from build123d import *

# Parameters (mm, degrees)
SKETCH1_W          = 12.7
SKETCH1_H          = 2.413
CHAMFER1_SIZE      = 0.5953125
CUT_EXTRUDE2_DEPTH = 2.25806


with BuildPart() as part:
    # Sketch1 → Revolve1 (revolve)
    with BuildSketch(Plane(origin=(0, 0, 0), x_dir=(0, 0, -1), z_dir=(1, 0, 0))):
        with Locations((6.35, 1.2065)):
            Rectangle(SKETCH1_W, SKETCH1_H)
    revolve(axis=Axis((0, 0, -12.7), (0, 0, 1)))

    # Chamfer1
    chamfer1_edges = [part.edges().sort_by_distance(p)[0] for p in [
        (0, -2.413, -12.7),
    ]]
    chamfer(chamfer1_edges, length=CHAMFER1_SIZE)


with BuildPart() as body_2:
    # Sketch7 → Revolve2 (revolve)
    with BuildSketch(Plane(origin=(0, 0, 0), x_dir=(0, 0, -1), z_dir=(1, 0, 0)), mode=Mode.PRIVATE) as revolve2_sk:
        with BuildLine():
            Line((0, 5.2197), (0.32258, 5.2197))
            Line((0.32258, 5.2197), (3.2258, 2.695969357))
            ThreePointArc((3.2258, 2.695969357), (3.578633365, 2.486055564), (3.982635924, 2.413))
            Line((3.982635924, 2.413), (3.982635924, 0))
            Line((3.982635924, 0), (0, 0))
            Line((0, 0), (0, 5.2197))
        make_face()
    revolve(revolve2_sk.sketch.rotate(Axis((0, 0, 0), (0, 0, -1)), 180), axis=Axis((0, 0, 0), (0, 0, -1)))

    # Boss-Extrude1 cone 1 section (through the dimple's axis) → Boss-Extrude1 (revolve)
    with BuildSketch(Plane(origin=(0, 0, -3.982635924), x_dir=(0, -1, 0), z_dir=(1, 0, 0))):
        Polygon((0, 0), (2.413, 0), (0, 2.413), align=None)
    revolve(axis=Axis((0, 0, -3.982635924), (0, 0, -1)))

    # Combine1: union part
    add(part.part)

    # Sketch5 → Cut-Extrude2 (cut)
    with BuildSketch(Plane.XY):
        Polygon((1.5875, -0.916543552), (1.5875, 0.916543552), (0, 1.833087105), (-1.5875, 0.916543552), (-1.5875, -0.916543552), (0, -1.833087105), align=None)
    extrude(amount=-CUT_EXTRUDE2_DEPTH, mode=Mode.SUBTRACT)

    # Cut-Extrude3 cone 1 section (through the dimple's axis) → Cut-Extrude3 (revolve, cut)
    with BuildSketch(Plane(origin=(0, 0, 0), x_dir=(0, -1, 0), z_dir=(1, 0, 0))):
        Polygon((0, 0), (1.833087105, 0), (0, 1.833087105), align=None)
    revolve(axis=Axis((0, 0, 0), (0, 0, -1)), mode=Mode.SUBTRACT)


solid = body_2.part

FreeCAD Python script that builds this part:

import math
import FreeCAD as App
import Part
import Sketcher
from FreeCAD import Vector
Q = App.Units.Quantity


def edges_at(feature, points):
    """Names of the edges that pass closest to the given points."""
    edges = feature.Shape.Edges
    near = lambda p: min(range(len(edges)), key=lambda i: edges[i].distToShape(Part.Vertex(*p))[0])
    return sorted({f"Edge{near(p) + 1}" for p in points})

doc = App.newDocument("Part")
body = doc.addObject("PartDesign::Body", "Body")

# Sketch on YZ plane
sketch1 = body.newObject("Sketcher::SketchObject", "Sketch")
sketch1.AttachmentSupport = (doc.getObject("YZ_Plane"), [""])
sketch1.MapMode = "FlatFace"
sketch1.addGeometry([
    Part.LineSegment(Vector(2.4, 0, 0), Vector(0, 0, 0)),
    Part.LineSegment(Vector(0, 0, 0), Vector(0, -12.7, 0)),
    Part.LineSegment(Vector(0, -12.7, 0), Vector(2.4, -12.7, 0)),
    Part.LineSegment(Vector(2.4, -12.7, 0), Vector(2.4, 0, 0)),
], False)
sketch1.addConstraint([
    Sketcher.Constraint("Coincident", 0, 2, 1, 1),
    Sketcher.Constraint("Coincident", 1, 2, 2, 1),
    Sketcher.Constraint("Coincident", 2, 2, 3, 1),
    Sketcher.Constraint("Coincident", 3, 2, 0, 1),
    Sketcher.Constraint("Horizontal", 0),
    Sketcher.Constraint("Vertical", 1),
    Sketcher.Constraint("Horizontal", 2),
    Sketcher.Constraint("Vertical", 3),
    Sketcher.Constraint("Coincident", 0, 2, -1, 1),
    Sketcher.Constraint("DistanceY", 1, 2, 1, 1, Q("0.5 in")),
    Sketcher.Constraint("DistanceX", 0, 2, 0, 1, Q("0.095 in")),
])
revolution = body.newObject("PartDesign::Revolution", "Revolution")
revolution.Profile = sketch1
revolution.ReferenceAxis = (sketch1, ["V_Axis"])
revolution.Angle = 360
doc.recompute()

chamfer = body.newObject("PartDesign::Chamfer", "Chamfer")
chamfer.Base = (revolution, edges_at(revolution, [(0, -2.413, -12.7)]))
chamfer.Size = 0.595313
body2 = doc.addObject("PartDesign::Body", "Body001")

# Sketch on YZ plane
sketch2 = body2.newObject("Sketcher::SketchObject", "Sketch001")
sketch2.AttachmentSupport = (doc.getObject("YZ_Plane001"), [""])
sketch2.MapMode = "FlatFace"
sketch2.addGeometry([
    Part.LineSegment(Vector(5.22, -0.32, 0), Vector(5.22, 0, 0)),  # 0
    Part.LineSegment(Vector(5.22, 0, 0), Vector(0, 0, 0)),  # 1
    Part.LineSegment(Vector(0, 0, 0), Vector(0, -3.98, 0)),  # 2
    Part.LineSegment(Vector(0, -3.98, 0), Vector(2.41, -3.98, 0)),  # 3
    Part.ArcOfCircle(Part.Circle(Vector(3.57, -3.98, 0), Vector(0, 0, 1), 1.15), math.radians(139), math.radians(180)),  # 4
    Part.LineSegment(Vector(2.7, -3.23, 0), Vector(5.22, -0.32, 0)),  # 5
], False)
sketch2.addConstraint([
    Sketcher.Constraint("Coincident", 0, 2, 1, 1),
    Sketcher.Constraint("Coincident", 1, 2, 2, 1),
    Sketcher.Constraint("Coincident", 2, 2, 3, 1),
    Sketcher.Constraint("Coincident", 3, 2, 4, 2),
    Sketcher.Constraint("Tangent", 4, 1, 5, 1),
    Sketcher.Constraint("Coincident", 5, 2, 0, 1),
    Sketcher.Constraint("Vertical", 0),
    Sketcher.Constraint("Horizontal", 1),
    Sketcher.Constraint("Vertical", 2),
    Sketcher.Constraint("Horizontal", 3),
    Sketcher.Constraint("Coincident", 1, 2, -1, 1),
    Sketcher.Constraint("Horizontal", 4, 3, 2, 2),
    Sketcher.Constraint("Angle", 5, Q("49 deg")),
    Sketcher.Constraint("DistanceX", 3, 1, 3, 2, Q("0.095 in")),
    Sketcher.Constraint("DistanceX", 1, 2, 1, 1, Q("0.2055 in")),
    Sketcher.Constraint("DistanceY", 0, 1, 0, 2, Q("0.0127 in")),
    Sketcher.Constraint("DistanceY", 4, 1, -1, 1, Q("0.127 in")),
])
revolution2 = body2.newObject("PartDesign::Revolution", "Revolution001")
revolution2.Profile = sketch2
revolution2.ReferenceAxis = (sketch2, ["V_Axis"])
revolution2.Angle = 360

# Sketch on YZ plane
sketch3 = body2.newObject("Sketcher::SketchObject", "Sketch002")
sketch3.AttachmentSupport = (doc.getObject("YZ_Plane001"), [""])
sketch3.MapMode = "FlatFace"
sketch3.addGeometry([
    Part.LineSegment(Vector(0, -4, 0), Vector(-2.4, -4, 0)),
    Part.LineSegment(Vector(-2.4, -4, 0), Vector(0, -6.4, 0)),
    Part.LineSegment(Vector(0, -6.4, 0), Vector(0, -4, 0)),
], False)
sketch3.addConstraint([
    Sketcher.Constraint("Coincident", 0, 2, 1, 1),
    Sketcher.Constraint("Coincident", 1, 2, 2, 1),
    Sketcher.Constraint("Coincident", 2, 2, 0, 1),
    Sketcher.Constraint("Horizontal", 0),
    Sketcher.Constraint("Vertical", 2),
    Sketcher.Constraint("PointOnObject", 1, 2, -2),
    Sketcher.Constraint("Equal", 0, 2),
    Sketcher.Constraint("DistanceX", 0, 2, 0, 1, Q("0.095 in")),
    Sketcher.Constraint("DistanceY", 0, 2, -1, 1, 3.982636),
])
revolution3 = body2.newObject("PartDesign::Revolution", "Revolution002")
revolution3.Profile = sketch3
revolution3.ReferenceAxis = (sketch3, ["V_Axis"])
revolution3.Angle = 360
doc.recompute()

boolean = body2.newObject("PartDesign::Boolean", "Boolean")
boolean.Type = "Fuse"
boolean.addObjects([body])

# Sketch on XY plane
sketch4 = body2.newObject("Sketcher::SketchObject", "Sketch003")
sketch4.AttachmentSupport = (doc.getObject("XY_Plane001"), [""])
sketch4.MapMode = "FlatFace"
sketch4.addGeometry([
    Part.LineSegment(Vector(1.6, -0.9, 0), Vector(1.6, 0.9, 0)),  # 0
    Part.LineSegment(Vector(1.6, 0.9, 0), Vector(0, 1.8, 0)),  # 1
    Part.LineSegment(Vector(0, 1.8, 0), Vector(-1.6, 0.9, 0)),  # 2
    Part.LineSegment(Vector(-1.6, 0.9, 0), Vector(-1.6, -0.9, 0)),  # 3
    Part.LineSegment(Vector(-1.6, -0.9, 0), Vector(0, -1.8, 0)),  # 4
    Part.LineSegment(Vector(0, -1.8, 0), Vector(1.6, -0.9, 0)),  # 5
], False)
sketch4.addConstraint([
    Sketcher.Constraint("Coincident", 0, 2, 1, 1),
    Sketcher.Constraint("Coincident", 1, 2, 2, 1),
    Sketcher.Constraint("Coincident", 2, 2, 3, 1),
    Sketcher.Constraint("Coincident", 3, 2, 4, 1),
    Sketcher.Constraint("Coincident", 4, 2, 5, 1),
    Sketcher.Constraint("Coincident", 5, 2, 0, 1),
    Sketcher.Constraint("Vertical", 0),
    Sketcher.Constraint("Vertical", 3),
    Sketcher.Constraint("Symmetric", 0, 2, 3, 2, -1, 1),
    Sketcher.Constraint("Symmetric", 1, 2, 4, 2, -1, 1),
    Sketcher.Constraint("PointOnObject", 1, 2, -2),
    Sketcher.Constraint("Parallel", 2, 5),
    Sketcher.Constraint("Horizontal", 0, 2, 2, 2),
    Sketcher.Constraint("Angle", 1, Q("150 deg")),
    Sketcher.Constraint("DistanceX", -1, 1, 0, 2, Q("0.0625 in")),
    Sketcher.Constraint("DistanceY", 0, 1, 0, 2, 1.833087),
])
pocket1 = body2.newObject("PartDesign::Pocket", "Pocket")
pocket1.Profile = sketch4
pocket1.Length = Q("0.0889 in")

# Sketch on YZ plane
sketch5 = body2.newObject("Sketcher::SketchObject", "Sketch004")
sketch5.AttachmentSupport = (doc.getObject("YZ_Plane001"), [""])
sketch5.MapMode = "FlatFace"
sketch5.addGeometry([
    Part.LineSegment(Vector(0, 0, 0), Vector(-1.8, 0, 0)),
    Part.LineSegment(Vector(-1.8, 0, 0), Vector(0, -1.8, 0)),
    Part.LineSegment(Vector(0, -1.8, 0), Vector(0, 0, 0)),
], False)
sketch5.addConstraint([
    Sketcher.Constraint("Coincident", 0, 2, 1, 1),
    Sketcher.Constraint("Coincident", 1, 2, 2, 1),
    Sketcher.Constraint("Coincident", 2, 2, 0, 1),
    Sketcher.Constraint("Horizontal", 0),
    Sketcher.Constraint("Vertical", 2),
    Sketcher.Constraint("Coincident", 2, 2, -1, 1),
    Sketcher.Constraint("Equal", 0, 2),
    Sketcher.Constraint("DistanceX", 0, 2, 0, 1, 1.833087),
])
groove = body2.newObject("PartDesign::Groove", "Groove")
groove.Profile = sketch5
groove.ReferenceAxis = (sketch5, ["V_Axis"])
groove.Angle = 360

doc.recompute()
